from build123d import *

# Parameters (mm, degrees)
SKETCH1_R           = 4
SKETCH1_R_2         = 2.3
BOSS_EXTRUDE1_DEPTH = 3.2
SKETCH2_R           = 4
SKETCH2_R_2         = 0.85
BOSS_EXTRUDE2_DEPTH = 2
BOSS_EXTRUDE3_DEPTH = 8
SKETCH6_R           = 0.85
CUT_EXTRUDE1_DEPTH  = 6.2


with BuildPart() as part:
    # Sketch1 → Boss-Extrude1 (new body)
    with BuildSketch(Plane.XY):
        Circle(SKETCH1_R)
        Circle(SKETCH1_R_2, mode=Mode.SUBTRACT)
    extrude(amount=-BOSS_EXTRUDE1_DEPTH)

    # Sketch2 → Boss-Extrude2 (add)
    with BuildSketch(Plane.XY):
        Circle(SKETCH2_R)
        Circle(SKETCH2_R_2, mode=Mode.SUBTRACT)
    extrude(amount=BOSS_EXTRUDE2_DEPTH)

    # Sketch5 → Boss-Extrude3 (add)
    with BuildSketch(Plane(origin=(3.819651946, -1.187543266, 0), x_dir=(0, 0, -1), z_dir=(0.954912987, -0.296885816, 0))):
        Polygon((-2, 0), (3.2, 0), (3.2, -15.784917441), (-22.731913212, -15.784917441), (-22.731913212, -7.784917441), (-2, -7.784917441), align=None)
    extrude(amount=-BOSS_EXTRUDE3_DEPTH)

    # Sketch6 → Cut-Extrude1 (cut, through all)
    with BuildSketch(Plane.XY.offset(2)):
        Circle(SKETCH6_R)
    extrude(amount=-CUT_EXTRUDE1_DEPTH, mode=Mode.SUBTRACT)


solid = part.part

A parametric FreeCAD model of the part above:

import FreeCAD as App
import Part
import Sketcher
Q = App.Units.Quantity


def add_polygon(sketch, points):
    """Adds a closed chain of lines whose ends are joined by coincident constraints."""
    first, n = sketch.GeometryCount, len(points)
    for a, b in zip(points, points[1:] + points[:1]):
        sketch.addGeometry(Part.LineSegment(App.Vector(*a, 0), App.Vector(*b, 0)), False)
    for i in range(n):
        sketch.addConstraint(Sketcher.Constraint("Coincident", first + i, 2, first + (i + 1) % n, 1))

doc = App.newDocument("Part")
body = doc.addObject("PartDesign::Body", "Body")

sketch1 = doc.addObject("Sketcher::SketchObject", "Sketch")
body.addObject(sketch1)
sketch1.AttachmentSupport = (doc.XY_Plane, [""])
sketch1.MapMode = "FlatFace"
sketch1.addGeometry(Part.Circle(App.Vector(0, 0, 0), App.Vector(0, 0, 1), 4), False)
sketch1.addGeometry(Part.Circle(App.Vector(0, 0, 0), App.Vector(0, 0, 1), 2.3), False)
sketch1.addConstraint(Sketcher.Constraint("Coincident", 0, 3, -1, 1))
sketch1.addConstraint(Sketcher.Constraint("Coincident", 1, 3, -1, 1))
sketch1.addConstraint(Sketcher.Constraint("Diameter", 0, Q("8 mm")))
sketch1.addConstraint(Sketcher.Constraint("Diameter", 1, Q("4.6 mm")))
pad1 = doc.addObject("PartDesign::Pad", "Pad")
body.addObject(pad1)
pad1.Profile = sketch1
pad1.Length = 3.2
pad1.Reversed = True

sketch2 = doc.addObject("Sketcher::SketchObject", "Sketch001")
body.addObject(sketch2)
sketch2.AttachmentSupport = (doc.XY_Plane, [""])
sketch2.MapMode = "FlatFace"
sketch2.addGeometry(Part.Circle(App.Vector(0, 0, 0), App.Vector(0, 0, 1), 4), False)
sketch2.addGeometry(Part.Circle(App.Vector(0, 0, 0), App.Vector(0, 0, 1), 0.8), False)
sketch2.addConstraint(Sketcher.Constraint("Coincident", 0, 3, -1, 1))
sketch2.addConstraint(Sketcher.Constraint("Coincident", 1, 3, -1, 1))
sketch2.addConstraint(Sketcher.Constraint("Diameter", 0, Q("8 mm")))
sketch2.addConstraint(Sketcher.Constraint("Diameter", 1, Q("1.7 mm")))
pad2 = doc.addObject("PartDesign::Pad", "Pad001")
body.addObject(pad2)
pad2.Profile = sketch2
pad2.Length = 2

sketch3 = doc.addObject("Sketcher::SketchObject", "Sketch002")
body.addObject(sketch3)
sketch3.Placement = App.Placement(App.Vector(3.819652, -1.187543, 0), App.Rotation(App.Vector(0, 0, -1), App.Vector(0.296885816, 0.954912987, 0), App.Vector(0.954912987, -0.296885816, 0), "ZXY"))
add_polygon(sketch3, [(3, 0), (-2, 0), (-2, -8), (-23, -8), (-23, -16), (3, -16)])
sketch3.addConstraint(Sketcher.Constraint("Horizontal", 0))
sketch3.addConstraint(Sketcher.Constraint("Vertical", 1))
sketch3.addConstraint(Sketcher.Constraint("Horizontal", 2))
sketch3.addConstraint(Sketcher.Constraint("Vertical", 3))
sketch3.addConstraint(Sketcher.Constraint("Horizontal", 4))
sketch3.addConstraint(Sketcher.Constraint("Vertical", 5))
sketch3.addConstraint(Sketcher.Constraint("PointOnObject", 0, 2, -1))
sketch3.addConstraint(Sketcher.Constraint("DistanceY", 3, 2, 3, 1, Q("8 mm")))
sketch3.addConstraint(Sketcher.Constraint("DistanceX", 0, 2, 0, 1, Q("5.2 mm")))
sketch3.addConstraint(Sketcher.Constraint("DistanceX", 0, 2, -1, 1, Q("2 mm")))
sketch3.addConstraint(Sketcher.Constraint("DistanceX", 2, 2, 2, 1, Q("20.731913 mm")))
sketch3.addConstraint(Sketcher.Constraint("DistanceY", 1, 2, 1, 1, Q("7.784917 mm")))
pad3 = doc.addObject("PartDesign::Pad", "Pad002")
body.addObject(pad3)
pad3.Profile = sketch3
pad3.Length = 8
pad3.Reversed = True

sketch4 = doc.addObject("Sketcher::SketchObject", "Sketch003")
body.addObject(sketch4)
sketch4.AttachmentSupport = (doc.XY_Plane, [""])
sketch4.MapMode = "FlatFace"
sketch4.AttachmentOffset = App.Placement(App.Vector(0, 0, 2), App.Rotation())
sketch4.addGeometry(Part.Circle(App.Vector(0, 0, 0), App.Vector(0, 0, 1), 0.8), False)
sketch4.addConstraint(Sketcher.Constraint("Coincident", 0, 3, -1, 1))
sketch4.addConstraint(Sketcher.Constraint("Diameter", 0, Q("1.7 mm")))
pocket1 = doc.addObject("PartDesign::Pocket", "Pocket")
body.addObject(pocket1)
pocket1.Profile = sketch4
pocket1.Type = "ThroughAll"

doc.recompute()
